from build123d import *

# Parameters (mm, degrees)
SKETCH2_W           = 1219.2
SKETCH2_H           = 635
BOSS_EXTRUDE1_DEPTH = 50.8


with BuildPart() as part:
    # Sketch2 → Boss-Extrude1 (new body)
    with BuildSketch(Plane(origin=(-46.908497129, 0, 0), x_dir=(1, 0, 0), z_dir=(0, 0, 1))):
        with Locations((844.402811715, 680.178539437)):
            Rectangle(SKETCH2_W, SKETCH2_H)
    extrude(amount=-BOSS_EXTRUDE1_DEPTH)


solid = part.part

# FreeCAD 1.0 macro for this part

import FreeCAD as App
import Part
import Sketcher

V = App.Vector
Q = App.Units.Quantity

doc = App.newDocument("Part")
body = doc.addObject("PartDesign::Body", "Body")

sketch1 = body.newObject("Sketcher::SketchObject", "Sketch")
sketch1.AttachmentSupport = (doc.getObject("XY_Plane"), [""])
sketch1.MapMode = "FlatFace"
sketch1.addGeometry(Part.LineSegment(V(187.894315, 997.678539, 0), V(187.894315, 362.678539, 0)), False)
sketch1.addGeometry(Part.LineSegment(V(187.894315, 362.678539, 0), V(1407.094315, 362.678539, 0)), False)
sketch1.addGeometry(Part.LineSegment(V(1407.094315, 362.678539, 0), V(1407.094315, 997.678539, 0)), False)
sketch1.addGeometry(Part.LineSegment(V(1407.094315, 997.678539, 0), V(187.894315, 997.678539, 0)), False)
sketch1.addConstraint(Sketcher.Constraint("Coincident", 0, 2, 1, 1))
sketch1.addConstraint(Sketcher.Constraint("Coincident", 1, 2, 2, 1))
sketch1.addConstraint(Sketcher.Constraint("Coincident", 2, 2, 3, 1))
sketch1.addConstraint(Sketcher.Constraint("Coincident", 3, 2, 0, 1))
sketch1.addConstraint(Sketcher.Constraint("Vertical", 0))
sketch1.addConstraint(Sketcher.Constraint("Horizontal", 1))
sketch1.addConstraint(Sketcher.Constraint("Vertical", 2))
sketch1.addConstraint(Sketcher.Constraint("Horizontal", 3))
sketch1.addConstraint(Sketcher.Constraint("DistanceX", 1, 1, 1, 2, Q("48 in")))
sketch1.addConstraint(Sketcher.Constraint("DistanceY", 0, 2, 0, 1, Q("25 in")))
sketch1.addConstraint(Sketcher.Constraint("DistanceY", -1, 1, 0, 2, Q("362.678539 mm")))
sketch1.addConstraint(Sketcher.Constraint("DistanceX", -1, 1, 0, 2, Q("187.894315 mm")))
pad1 = body.newObject("PartDesign::Pad", "Pad")
pad1.Profile = sketch1
pad1.Length = Q("2 in")
pad1.Reversed = True

doc.recompute()
